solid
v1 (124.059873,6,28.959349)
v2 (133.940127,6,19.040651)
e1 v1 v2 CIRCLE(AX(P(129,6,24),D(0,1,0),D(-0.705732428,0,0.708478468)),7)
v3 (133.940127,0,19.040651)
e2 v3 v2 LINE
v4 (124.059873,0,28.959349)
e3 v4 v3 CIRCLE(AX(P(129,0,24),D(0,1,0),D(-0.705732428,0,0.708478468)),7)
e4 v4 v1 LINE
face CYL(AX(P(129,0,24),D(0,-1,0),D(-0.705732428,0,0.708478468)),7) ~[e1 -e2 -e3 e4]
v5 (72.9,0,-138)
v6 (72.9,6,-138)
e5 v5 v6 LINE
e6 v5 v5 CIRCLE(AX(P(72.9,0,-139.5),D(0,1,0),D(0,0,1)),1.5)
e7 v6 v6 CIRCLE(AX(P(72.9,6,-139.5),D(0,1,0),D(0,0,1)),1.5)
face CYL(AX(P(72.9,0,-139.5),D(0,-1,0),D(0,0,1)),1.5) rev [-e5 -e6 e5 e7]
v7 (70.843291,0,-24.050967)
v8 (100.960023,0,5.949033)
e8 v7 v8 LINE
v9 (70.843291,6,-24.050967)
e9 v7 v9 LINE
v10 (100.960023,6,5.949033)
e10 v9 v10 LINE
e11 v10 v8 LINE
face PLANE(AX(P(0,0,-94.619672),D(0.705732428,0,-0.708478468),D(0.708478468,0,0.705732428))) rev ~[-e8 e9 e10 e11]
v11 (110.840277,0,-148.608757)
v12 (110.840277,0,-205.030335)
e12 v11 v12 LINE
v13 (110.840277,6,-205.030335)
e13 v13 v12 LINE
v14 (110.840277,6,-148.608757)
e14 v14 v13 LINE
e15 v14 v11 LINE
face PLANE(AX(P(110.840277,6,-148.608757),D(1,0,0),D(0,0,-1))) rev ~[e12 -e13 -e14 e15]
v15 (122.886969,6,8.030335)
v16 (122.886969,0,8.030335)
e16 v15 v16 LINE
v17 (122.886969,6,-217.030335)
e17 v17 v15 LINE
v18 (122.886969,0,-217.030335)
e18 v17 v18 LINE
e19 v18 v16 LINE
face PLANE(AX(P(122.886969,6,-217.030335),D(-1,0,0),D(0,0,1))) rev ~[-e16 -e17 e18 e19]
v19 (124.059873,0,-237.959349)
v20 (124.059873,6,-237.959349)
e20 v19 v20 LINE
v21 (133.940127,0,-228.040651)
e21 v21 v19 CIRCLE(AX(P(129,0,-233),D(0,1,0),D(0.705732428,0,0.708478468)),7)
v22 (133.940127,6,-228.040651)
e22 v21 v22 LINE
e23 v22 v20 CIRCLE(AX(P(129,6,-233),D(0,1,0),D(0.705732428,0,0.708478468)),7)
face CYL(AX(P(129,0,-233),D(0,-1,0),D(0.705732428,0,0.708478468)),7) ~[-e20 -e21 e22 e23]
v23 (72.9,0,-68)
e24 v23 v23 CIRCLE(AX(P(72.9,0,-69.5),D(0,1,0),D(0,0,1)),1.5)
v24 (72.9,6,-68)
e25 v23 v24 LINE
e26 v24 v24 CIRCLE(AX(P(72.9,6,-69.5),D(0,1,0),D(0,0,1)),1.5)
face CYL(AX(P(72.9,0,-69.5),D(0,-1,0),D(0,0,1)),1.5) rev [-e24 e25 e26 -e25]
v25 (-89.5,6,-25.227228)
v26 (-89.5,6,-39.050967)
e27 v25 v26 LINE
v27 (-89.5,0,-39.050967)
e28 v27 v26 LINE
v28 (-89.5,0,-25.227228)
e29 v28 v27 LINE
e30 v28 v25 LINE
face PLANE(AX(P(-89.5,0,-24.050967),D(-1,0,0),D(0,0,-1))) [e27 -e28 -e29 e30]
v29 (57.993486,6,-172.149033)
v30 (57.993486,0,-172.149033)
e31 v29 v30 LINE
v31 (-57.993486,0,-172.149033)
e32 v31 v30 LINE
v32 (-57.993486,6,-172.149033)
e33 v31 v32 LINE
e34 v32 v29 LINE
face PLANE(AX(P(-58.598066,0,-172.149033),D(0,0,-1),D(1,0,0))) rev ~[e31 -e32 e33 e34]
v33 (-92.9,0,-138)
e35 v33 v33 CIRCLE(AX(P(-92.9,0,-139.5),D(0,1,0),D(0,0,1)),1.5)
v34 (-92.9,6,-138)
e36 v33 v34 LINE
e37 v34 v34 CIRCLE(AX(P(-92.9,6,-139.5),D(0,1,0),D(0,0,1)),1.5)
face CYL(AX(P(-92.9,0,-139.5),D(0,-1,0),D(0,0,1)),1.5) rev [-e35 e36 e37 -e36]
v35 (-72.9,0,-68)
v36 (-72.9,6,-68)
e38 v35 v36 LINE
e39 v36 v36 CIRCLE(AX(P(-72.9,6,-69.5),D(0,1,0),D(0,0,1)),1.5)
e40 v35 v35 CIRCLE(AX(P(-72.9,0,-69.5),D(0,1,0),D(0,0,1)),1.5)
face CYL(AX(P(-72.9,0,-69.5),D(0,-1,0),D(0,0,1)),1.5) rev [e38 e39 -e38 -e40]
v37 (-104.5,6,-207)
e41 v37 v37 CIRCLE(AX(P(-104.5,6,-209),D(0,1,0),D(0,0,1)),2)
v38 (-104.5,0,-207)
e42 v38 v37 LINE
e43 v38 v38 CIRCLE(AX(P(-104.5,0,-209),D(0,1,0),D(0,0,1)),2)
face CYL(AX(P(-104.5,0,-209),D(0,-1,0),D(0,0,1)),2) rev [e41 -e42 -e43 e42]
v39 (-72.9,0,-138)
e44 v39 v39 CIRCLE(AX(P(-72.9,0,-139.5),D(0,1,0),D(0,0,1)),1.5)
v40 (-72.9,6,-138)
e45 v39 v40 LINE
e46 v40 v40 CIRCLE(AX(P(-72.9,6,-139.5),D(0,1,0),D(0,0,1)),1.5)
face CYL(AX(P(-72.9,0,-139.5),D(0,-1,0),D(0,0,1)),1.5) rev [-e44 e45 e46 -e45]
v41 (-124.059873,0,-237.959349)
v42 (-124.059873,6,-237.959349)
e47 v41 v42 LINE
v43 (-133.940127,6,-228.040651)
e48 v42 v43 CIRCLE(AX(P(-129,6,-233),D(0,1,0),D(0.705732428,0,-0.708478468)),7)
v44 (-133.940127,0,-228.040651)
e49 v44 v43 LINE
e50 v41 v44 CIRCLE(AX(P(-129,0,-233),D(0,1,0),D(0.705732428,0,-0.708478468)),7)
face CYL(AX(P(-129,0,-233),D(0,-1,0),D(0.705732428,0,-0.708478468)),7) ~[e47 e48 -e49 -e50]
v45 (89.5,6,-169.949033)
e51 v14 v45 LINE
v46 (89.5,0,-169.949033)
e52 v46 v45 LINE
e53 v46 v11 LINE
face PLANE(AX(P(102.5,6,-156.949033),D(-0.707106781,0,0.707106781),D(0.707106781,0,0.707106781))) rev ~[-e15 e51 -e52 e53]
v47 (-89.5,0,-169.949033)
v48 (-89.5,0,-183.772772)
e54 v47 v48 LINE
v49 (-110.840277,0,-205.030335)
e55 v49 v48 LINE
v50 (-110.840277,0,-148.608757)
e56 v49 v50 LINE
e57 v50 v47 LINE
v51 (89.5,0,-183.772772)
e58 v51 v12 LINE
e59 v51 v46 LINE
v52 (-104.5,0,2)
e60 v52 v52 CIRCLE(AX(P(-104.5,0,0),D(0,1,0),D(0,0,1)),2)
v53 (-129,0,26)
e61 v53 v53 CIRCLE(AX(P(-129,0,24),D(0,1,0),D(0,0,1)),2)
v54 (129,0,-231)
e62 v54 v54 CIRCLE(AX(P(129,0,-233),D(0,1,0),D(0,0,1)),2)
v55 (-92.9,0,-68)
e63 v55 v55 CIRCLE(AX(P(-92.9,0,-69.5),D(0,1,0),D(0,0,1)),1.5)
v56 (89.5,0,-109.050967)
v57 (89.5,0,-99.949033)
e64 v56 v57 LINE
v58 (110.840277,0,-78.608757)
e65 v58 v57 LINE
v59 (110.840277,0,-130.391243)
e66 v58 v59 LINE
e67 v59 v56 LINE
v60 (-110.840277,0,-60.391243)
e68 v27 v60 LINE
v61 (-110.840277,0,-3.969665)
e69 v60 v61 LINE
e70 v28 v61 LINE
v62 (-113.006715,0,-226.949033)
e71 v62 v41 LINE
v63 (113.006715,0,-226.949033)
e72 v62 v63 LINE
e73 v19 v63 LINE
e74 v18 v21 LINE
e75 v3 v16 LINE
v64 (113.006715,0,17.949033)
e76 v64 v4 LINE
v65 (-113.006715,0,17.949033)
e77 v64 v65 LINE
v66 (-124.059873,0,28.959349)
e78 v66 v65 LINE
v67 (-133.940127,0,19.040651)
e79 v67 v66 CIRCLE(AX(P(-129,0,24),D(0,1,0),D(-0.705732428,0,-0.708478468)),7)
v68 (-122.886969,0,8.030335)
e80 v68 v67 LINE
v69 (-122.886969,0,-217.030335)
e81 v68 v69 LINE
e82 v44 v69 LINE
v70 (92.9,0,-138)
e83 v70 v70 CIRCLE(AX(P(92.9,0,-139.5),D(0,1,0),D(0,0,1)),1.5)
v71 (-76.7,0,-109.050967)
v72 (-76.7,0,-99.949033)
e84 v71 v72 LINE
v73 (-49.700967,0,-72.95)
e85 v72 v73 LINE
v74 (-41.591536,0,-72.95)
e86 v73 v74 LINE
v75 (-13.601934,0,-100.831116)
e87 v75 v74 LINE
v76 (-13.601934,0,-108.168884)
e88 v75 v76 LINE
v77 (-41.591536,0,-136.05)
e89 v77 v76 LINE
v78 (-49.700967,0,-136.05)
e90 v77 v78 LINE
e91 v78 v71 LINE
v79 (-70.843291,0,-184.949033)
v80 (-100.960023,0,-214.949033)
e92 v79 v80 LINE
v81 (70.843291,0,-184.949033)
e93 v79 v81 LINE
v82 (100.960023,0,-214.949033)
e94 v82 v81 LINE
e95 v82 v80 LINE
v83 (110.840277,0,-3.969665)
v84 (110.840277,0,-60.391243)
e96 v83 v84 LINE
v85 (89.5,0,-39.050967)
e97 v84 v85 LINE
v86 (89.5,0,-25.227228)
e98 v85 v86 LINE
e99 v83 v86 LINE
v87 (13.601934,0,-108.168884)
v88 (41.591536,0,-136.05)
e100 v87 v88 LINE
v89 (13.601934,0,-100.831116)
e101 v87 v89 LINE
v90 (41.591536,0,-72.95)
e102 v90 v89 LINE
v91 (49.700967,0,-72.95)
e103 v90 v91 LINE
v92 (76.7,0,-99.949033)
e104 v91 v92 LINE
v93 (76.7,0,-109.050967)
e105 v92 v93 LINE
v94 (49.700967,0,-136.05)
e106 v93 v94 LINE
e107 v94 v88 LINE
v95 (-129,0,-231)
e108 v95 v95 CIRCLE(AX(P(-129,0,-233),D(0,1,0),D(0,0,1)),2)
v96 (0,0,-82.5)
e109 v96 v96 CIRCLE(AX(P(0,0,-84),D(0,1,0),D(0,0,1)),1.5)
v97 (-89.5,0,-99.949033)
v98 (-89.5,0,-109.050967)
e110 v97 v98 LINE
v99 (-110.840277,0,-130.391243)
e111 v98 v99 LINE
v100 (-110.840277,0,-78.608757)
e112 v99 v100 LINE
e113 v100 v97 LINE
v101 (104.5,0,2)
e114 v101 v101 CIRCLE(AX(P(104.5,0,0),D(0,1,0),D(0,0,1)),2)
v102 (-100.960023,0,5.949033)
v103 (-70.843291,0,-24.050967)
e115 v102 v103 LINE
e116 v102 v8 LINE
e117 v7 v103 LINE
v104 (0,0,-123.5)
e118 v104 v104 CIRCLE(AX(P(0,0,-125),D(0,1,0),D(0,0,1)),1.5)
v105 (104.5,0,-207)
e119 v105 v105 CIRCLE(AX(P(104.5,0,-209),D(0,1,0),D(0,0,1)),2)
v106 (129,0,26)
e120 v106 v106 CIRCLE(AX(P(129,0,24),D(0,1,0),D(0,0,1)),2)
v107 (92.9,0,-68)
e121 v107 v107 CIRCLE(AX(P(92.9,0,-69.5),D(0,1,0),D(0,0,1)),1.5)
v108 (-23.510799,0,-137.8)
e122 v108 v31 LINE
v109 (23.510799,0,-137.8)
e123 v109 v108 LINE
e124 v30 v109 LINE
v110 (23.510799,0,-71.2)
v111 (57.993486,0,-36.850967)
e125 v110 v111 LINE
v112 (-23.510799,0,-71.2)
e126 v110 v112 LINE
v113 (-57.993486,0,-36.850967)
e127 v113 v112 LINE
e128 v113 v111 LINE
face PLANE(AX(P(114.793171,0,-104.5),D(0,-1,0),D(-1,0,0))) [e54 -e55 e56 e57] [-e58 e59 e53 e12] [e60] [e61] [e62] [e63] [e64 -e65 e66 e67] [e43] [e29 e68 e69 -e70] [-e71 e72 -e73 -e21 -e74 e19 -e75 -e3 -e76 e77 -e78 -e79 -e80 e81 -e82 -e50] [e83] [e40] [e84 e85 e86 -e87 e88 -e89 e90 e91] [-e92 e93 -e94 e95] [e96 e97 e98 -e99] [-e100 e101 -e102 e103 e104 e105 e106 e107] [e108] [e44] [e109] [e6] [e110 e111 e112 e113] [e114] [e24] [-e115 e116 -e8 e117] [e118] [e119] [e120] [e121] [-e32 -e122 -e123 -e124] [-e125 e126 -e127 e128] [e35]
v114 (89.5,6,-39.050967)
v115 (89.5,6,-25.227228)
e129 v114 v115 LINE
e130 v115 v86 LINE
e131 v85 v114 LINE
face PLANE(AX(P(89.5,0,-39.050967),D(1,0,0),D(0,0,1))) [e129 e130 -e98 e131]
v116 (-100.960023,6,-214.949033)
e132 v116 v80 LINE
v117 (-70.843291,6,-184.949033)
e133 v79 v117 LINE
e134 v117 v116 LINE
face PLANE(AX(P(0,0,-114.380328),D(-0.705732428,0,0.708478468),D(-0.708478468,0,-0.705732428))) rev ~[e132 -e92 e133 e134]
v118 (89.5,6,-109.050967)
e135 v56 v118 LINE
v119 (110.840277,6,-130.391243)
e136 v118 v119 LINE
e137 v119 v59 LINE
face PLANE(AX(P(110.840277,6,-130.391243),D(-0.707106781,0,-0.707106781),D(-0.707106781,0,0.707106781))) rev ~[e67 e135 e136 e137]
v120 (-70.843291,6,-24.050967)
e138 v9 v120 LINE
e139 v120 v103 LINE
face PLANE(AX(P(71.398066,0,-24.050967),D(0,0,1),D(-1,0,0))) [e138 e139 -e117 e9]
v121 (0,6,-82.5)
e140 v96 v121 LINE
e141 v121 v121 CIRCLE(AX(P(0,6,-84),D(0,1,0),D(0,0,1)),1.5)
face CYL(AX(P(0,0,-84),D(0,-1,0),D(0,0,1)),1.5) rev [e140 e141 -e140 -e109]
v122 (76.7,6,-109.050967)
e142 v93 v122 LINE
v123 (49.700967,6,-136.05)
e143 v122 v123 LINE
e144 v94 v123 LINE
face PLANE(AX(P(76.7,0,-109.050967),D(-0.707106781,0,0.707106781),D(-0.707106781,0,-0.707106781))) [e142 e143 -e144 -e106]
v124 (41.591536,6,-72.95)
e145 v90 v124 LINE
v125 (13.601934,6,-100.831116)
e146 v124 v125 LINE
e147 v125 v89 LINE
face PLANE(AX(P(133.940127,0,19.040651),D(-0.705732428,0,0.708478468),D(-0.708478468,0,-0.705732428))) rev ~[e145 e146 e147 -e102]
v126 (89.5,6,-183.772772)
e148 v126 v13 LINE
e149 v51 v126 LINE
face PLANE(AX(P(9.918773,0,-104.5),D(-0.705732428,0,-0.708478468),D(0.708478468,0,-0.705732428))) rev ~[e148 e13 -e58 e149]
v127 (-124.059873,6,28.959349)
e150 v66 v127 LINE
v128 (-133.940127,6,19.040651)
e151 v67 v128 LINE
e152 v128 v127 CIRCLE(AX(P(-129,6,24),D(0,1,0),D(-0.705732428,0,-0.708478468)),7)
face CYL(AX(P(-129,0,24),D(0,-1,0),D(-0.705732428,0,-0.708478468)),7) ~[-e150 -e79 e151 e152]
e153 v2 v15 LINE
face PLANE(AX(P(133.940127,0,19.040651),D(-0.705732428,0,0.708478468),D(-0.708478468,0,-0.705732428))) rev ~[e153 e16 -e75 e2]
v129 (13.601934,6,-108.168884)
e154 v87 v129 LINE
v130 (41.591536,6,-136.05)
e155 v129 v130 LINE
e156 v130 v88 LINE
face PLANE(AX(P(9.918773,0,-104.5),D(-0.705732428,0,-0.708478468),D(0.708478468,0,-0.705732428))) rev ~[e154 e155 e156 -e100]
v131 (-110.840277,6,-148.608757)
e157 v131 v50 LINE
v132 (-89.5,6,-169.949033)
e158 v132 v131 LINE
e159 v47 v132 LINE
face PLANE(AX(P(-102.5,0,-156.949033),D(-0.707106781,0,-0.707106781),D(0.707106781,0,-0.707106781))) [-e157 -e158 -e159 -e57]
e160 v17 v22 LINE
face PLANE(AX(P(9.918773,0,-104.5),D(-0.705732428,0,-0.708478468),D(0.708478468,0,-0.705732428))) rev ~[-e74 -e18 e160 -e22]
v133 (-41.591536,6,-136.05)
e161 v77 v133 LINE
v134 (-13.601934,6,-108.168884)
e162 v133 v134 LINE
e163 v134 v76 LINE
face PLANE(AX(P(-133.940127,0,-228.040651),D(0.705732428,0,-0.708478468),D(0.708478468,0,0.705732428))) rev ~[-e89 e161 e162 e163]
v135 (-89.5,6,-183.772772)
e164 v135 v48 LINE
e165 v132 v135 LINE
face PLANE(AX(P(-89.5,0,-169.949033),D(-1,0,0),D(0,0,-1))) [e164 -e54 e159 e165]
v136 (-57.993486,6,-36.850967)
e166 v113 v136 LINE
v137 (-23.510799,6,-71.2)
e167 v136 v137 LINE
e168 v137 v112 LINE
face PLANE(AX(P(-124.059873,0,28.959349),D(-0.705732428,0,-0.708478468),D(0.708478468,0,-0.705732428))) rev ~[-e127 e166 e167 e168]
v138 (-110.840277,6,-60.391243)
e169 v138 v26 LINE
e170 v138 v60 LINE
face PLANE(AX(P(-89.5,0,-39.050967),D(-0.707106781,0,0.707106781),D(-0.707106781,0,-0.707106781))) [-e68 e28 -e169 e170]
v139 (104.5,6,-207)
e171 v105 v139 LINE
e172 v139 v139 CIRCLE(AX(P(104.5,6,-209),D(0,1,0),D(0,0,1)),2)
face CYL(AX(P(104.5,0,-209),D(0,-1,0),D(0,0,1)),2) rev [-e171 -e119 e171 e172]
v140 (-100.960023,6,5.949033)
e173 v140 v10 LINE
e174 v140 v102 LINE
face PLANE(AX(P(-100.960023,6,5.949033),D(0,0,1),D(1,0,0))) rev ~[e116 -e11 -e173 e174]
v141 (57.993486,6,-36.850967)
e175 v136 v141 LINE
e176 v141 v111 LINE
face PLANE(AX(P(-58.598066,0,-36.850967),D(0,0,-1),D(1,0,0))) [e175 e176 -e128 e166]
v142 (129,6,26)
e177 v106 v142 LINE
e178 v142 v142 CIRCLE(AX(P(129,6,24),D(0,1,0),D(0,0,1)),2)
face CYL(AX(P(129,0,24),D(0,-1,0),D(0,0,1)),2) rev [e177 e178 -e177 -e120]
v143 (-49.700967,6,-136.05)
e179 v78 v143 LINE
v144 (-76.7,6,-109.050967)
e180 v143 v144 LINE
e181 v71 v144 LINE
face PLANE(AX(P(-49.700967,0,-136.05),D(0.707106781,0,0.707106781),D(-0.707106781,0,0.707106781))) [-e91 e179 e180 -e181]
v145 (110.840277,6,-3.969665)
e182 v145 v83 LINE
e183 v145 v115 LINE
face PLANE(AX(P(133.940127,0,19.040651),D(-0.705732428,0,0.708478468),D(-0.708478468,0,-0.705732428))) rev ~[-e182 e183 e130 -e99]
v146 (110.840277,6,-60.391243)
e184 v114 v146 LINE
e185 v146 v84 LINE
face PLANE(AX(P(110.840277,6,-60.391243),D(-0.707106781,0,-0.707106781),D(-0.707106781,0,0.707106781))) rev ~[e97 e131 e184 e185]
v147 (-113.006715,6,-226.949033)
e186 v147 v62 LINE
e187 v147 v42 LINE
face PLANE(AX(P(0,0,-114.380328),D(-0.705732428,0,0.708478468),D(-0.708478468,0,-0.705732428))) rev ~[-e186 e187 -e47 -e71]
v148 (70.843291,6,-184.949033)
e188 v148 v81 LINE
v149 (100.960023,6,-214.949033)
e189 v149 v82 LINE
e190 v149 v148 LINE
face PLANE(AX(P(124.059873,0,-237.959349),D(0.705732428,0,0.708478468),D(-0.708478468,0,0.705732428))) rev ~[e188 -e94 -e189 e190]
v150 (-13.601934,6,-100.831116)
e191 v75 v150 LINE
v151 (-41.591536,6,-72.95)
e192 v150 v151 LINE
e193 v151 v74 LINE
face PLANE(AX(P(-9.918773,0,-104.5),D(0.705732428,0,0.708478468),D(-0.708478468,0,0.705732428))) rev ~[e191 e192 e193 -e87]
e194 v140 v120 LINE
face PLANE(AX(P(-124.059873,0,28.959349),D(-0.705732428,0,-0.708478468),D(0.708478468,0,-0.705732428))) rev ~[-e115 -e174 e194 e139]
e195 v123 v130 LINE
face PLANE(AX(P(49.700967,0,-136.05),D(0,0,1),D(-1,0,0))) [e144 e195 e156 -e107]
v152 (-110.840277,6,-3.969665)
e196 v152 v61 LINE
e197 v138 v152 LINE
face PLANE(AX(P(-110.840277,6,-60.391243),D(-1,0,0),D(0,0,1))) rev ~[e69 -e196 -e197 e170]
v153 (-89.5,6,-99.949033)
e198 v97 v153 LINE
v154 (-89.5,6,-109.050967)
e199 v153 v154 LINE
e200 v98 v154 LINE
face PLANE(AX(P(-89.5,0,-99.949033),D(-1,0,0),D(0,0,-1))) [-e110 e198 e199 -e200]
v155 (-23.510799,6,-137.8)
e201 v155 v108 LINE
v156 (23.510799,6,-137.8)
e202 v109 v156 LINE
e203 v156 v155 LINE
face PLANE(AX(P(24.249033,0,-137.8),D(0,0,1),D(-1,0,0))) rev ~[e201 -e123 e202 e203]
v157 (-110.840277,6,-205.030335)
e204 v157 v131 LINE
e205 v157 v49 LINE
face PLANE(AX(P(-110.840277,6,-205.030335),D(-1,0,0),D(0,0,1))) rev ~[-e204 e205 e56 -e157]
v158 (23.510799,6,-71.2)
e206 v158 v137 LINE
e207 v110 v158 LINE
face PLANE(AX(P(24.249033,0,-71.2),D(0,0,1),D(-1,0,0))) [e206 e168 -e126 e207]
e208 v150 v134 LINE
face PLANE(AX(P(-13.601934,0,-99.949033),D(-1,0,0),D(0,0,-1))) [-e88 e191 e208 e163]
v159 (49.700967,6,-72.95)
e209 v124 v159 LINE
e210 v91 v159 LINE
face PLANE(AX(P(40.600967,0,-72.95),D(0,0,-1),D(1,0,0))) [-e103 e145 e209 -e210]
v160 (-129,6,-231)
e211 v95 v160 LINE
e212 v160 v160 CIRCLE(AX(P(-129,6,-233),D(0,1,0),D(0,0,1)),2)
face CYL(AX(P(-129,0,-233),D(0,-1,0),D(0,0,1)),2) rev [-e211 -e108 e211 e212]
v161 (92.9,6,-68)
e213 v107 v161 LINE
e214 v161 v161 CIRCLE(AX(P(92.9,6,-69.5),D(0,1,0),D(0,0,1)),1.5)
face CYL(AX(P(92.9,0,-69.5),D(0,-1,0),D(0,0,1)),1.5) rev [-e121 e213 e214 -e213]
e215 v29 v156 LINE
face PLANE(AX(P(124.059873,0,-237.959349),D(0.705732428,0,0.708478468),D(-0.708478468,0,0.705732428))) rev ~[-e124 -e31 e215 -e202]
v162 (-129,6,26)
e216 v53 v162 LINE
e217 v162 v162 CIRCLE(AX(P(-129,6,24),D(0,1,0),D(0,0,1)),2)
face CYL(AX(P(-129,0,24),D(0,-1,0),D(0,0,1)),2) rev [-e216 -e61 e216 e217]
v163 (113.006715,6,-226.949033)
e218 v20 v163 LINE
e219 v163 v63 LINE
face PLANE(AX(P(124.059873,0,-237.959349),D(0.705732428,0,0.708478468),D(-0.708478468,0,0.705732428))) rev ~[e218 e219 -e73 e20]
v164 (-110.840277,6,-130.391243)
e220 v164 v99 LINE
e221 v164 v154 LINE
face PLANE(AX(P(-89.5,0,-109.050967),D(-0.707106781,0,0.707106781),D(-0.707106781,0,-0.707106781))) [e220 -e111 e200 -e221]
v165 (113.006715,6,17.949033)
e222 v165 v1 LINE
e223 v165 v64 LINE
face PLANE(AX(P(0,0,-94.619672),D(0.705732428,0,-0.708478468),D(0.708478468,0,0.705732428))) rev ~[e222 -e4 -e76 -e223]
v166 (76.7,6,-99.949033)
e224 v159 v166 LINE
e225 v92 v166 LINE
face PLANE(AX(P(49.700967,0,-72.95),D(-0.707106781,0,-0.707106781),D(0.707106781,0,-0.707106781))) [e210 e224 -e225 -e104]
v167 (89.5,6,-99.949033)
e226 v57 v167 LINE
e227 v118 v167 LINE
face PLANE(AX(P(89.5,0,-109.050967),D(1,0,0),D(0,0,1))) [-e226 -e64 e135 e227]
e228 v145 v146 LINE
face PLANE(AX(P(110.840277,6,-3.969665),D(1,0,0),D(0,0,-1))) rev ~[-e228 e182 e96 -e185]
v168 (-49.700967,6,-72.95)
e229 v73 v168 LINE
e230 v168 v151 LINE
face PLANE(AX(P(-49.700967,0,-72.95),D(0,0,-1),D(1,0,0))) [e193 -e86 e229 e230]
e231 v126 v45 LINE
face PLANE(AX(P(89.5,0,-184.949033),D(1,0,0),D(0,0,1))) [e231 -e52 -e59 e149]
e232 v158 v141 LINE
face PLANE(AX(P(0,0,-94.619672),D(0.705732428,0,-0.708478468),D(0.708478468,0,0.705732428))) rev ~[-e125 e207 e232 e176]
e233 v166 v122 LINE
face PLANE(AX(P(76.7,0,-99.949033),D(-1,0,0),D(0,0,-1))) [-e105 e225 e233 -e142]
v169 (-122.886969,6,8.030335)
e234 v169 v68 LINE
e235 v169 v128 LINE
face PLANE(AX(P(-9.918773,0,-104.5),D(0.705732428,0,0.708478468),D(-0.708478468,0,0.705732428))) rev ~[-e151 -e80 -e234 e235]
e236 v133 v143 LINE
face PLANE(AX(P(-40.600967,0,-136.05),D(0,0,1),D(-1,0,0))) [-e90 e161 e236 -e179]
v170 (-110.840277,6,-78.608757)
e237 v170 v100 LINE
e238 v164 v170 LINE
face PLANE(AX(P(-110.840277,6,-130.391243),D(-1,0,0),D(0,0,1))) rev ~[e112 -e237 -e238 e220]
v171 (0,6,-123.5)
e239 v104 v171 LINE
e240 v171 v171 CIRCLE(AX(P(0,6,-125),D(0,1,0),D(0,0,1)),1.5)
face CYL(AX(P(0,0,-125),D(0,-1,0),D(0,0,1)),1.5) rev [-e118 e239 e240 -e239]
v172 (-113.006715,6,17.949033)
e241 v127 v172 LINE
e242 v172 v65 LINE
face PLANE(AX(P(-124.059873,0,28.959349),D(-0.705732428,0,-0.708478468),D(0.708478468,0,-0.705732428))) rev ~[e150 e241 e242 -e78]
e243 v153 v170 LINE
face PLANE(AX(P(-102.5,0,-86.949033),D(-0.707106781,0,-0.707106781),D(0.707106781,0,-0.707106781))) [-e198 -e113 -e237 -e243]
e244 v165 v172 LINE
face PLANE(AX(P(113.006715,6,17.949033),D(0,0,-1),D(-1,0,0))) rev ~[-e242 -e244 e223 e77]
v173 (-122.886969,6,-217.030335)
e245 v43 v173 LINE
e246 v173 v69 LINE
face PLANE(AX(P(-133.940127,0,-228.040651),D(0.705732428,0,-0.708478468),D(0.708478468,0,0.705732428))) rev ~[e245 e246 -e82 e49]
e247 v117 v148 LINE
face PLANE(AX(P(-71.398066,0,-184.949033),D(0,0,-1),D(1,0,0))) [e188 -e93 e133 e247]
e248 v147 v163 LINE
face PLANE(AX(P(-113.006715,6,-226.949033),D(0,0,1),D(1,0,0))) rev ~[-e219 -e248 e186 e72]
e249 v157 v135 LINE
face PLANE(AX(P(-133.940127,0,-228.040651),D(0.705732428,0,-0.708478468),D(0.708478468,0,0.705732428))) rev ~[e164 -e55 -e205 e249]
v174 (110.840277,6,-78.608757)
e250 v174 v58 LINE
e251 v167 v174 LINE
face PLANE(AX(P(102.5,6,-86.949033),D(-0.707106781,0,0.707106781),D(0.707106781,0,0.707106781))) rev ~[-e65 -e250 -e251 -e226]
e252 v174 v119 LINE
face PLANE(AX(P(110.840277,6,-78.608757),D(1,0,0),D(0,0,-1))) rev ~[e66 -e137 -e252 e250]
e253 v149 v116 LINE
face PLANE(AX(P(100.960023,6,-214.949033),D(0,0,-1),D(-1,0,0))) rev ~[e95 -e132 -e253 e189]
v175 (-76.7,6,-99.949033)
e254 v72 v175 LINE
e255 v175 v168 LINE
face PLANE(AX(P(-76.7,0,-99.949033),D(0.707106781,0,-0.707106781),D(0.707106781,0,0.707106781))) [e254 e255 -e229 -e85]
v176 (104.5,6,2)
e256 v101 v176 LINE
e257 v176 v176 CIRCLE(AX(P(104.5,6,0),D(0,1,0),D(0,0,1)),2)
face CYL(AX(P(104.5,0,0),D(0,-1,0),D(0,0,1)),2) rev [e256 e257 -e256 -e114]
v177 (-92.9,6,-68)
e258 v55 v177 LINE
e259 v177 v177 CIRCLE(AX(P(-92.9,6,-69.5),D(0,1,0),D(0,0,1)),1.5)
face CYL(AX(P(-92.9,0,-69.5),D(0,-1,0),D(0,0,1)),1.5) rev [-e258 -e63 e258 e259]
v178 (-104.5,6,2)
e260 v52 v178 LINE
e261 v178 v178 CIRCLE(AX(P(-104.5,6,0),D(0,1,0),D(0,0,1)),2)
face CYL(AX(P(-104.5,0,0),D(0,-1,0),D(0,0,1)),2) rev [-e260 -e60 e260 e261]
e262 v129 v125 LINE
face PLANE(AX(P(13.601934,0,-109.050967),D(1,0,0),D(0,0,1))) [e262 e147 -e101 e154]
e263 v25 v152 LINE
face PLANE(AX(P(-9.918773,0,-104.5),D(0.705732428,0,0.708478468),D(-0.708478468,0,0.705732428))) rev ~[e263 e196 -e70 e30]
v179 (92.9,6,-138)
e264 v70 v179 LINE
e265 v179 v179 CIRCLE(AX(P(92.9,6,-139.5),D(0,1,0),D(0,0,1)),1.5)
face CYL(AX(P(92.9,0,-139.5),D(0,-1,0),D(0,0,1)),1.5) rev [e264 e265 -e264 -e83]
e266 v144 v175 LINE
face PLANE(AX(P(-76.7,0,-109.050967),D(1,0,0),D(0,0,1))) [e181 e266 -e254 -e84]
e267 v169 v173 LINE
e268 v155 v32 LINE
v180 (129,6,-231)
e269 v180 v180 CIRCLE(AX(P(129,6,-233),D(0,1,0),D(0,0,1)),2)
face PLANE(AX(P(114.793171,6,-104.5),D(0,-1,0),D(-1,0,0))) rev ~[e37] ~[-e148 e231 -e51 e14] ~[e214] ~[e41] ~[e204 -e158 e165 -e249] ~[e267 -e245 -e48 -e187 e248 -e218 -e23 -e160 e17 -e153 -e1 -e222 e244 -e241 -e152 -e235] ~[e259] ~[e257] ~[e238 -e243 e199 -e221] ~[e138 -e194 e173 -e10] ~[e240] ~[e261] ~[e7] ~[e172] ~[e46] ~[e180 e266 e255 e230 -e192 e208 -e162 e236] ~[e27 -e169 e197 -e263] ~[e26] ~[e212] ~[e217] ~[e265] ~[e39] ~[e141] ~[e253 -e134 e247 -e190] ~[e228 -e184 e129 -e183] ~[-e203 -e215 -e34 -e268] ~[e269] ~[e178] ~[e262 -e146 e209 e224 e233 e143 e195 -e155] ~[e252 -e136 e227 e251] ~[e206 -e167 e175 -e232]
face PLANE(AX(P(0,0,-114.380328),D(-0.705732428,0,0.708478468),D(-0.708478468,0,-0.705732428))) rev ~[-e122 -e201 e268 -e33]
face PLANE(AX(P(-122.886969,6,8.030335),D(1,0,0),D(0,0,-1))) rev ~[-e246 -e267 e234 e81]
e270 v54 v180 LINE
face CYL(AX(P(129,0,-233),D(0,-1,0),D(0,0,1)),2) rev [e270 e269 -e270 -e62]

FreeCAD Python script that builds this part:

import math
import FreeCAD as App
import Part
import Sketcher
Q = App.Units.Quantity


def add_polygon(sketch, points):
    """Adds a closed chain of lines whose ends are joined by coincident constraints."""
    first, n = sketch.GeometryCount, len(points)
    for a, b in zip(points, points[1:] + points[:1]):
        sketch.addGeometry(Part.LineSegment(App.Vector(*a, 0), App.Vector(*b, 0)), False)
    for i in range(n):
        sketch.addConstraint(Sketcher.Constraint("Coincident", first + i, 2, first + (i + 1) % n, 1))

doc = App.newDocument("Part")
body = doc.addObject("PartDesign::Body", "Body")

# Sketch on XZ plane
sketch1 = body.newObject("Sketcher::SketchObject", "Sketch")
sketch1.AttachmentSupport = (doc.getObject("XZ_Plane"), [""])
sketch1.MapMode = "FlatFace"
sketch1.addGeometry(Part.LineSegment(App.Vector(71.4, -24.1, 0), App.Vector(100, 4.5, 0)), False)  # 0
sketch1.addGeometry(Part.ArcOfCircle(Part.Circle(App.Vector(104.5, 0, 0), App.Vector(0, 0, 1), 6.4), math.radians(-45), math.radians(135)), False)  # 1
sketch1.addGeometry(Part.LineSegment(App.Vector(109, -4.5, 0), App.Vector(89.5, -24.1, 0)), False)  # 2
sketch1.addGeometry(Part.LineSegment(App.Vector(89.5, -24.1, 0), App.Vector(89.5, -39.1, 0)), False)  # 3
sketch1.addGeometry(Part.LineSegment(App.Vector(89.5, -39.1, 0), App.Vector(102.5, -52.1, 0)), False)  # 4
sketch1.addGeometry(Part.LineSegment(App.Vector(102.5, -52.1, 0), App.Vector(102.5, -86.9, 0)), False)  # 5
sketch1.addGeometry(Part.LineSegment(App.Vector(102.5, -86.9, 0), App.Vector(89.5, -99.9, 0)), False)  # 6
sketch1.addGeometry(Part.LineSegment(App.Vector(89.5, -99.9, 0), App.Vector(89.5, -109.1, 0)), False)  # 7
sketch1.addGeometry(Part.LineSegment(App.Vector(89.5, -109.1, 0), App.Vector(102.5, -122.1, 0)), False)  # 8
sketch1.addGeometry(Part.LineSegment(App.Vector(102.5, -122.1, 0), App.Vector(102.5, -156.9, 0)), False)  # 9
sketch1.addGeometry(Part.LineSegment(App.Vector(102.5, -156.9, 0), App.Vector(89.5, -169.9, 0)), False)  # 10
sketch1.addGeometry(Part.LineSegment(App.Vector(89.5, -169.9, 0), App.Vector(89.5, -184.9, 0)), False)  # 11
sketch1.addGeometry(Part.LineSegment(App.Vector(89.5, -184.9, 0), App.Vector(109, -204.5, 0)), False)  # 12
sketch1.addGeometry(Part.ArcOfCircle(Part.Circle(App.Vector(104.5, -209, 0), App.Vector(0, 0, 1), 6.4), math.radians(-135), math.radians(45)), False)  # 13
sketch1.addGeometry(Part.LineSegment(App.Vector(100, -213.5, 0), App.Vector(71.4, -184.9, 0)), False)  # 14
sketch1.addGeometry(Part.LineSegment(App.Vector(71.4, -184.9, 0), App.Vector(-71.4, -184.9, 0)), False)  # 15
sketch1.addGeometry(Part.LineSegment(App.Vector(-71.4, -184.9, 0), App.Vector(-100, -213.5, 0)), False)  # 16
sketch1.addGeometry(Part.ArcOfCircle(Part.Circle(App.Vector(-104.5, -209, 0), App.Vector(0, 0, 1), 6.4), math.radians(135), math.radians(315)), False)  # 17
sketch1.addGeometry(Part.LineSegment(App.Vector(-109, -204.5, 0), App.Vector(-89.5, -184.9, 0)), False)  # 18
sketch1.addGeometry(Part.LineSegment(App.Vector(-89.5, -184.9, 0), App.Vector(-89.5, -169.9, 0)), False)  # 19
sketch1.addGeometry(Part.LineSegment(App.Vector(-89.5, -169.9, 0), App.Vector(-102.5, -156.9, 0)), False)  # 20
sketch1.addGeometry(Part.LineSegment(App.Vector(-102.5, -156.9, 0), App.Vector(-102.5, -122.1, 0)), False)  # 21
sketch1.addGeometry(Part.LineSegment(App.Vector(-102.5, -122.1, 0), App.Vector(-89.5, -109.1, 0)), False)  # 22
sketch1.addGeometry(Part.LineSegment(App.Vector(-89.5, -109.1, 0), App.Vector(-89.5, -99.9, 0)), False)  # 23
sketch1.addGeometry(Part.LineSegment(App.Vector(-89.5, -99.9, 0), App.Vector(-102.5, -86.9, 0)), False)  # 24
sketch1.addGeometry(Part.LineSegment(App.Vector(-102.5, -86.9, 0), App.Vector(-102.5, -52.1, 0)), False)  # 25
sketch1.addGeometry(Part.LineSegment(App.Vector(-102.5, -52.1, 0), App.Vector(-89.5, -39.1, 0)), False)  # 26
sketch1.addGeometry(Part.LineSegment(App.Vector(-89.5, -39.1, 0), App.Vector(-89.5, -24.1, 0)), False)  # 27
sketch1.addGeometry(Part.LineSegment(App.Vector(-89.5, -24.1, 0), App.Vector(-109, -4.5, 0)), False)  # 28
sketch1.addGeometry(Part.ArcOfCircle(Part.Circle(App.Vector(-104.5, 0, 0), App.Vector(0, 0, 1), 6.4), math.radians(45), math.radians(225)), False)  # 29
sketch1.addGeometry(Part.LineSegment(App.Vector(-100, 4.5, 0), App.Vector(-71.4, -24.1, 0)), False)  # 30
sketch1.addGeometry(Part.LineSegment(App.Vector(-71.4, -24.1, 0), App.Vector(71.4, -24.1, 0)), False)  # 31
sketch1.addGeometry(Part.Circle(App.Vector(104.5, 0, 0), App.Vector(0, 0, 1), 2), False)  # 32
sketch1.addGeometry(Part.Circle(App.Vector(92.9, -69.5, 0), App.Vector(0, 0, 1), 1.5), False)  # 33
sketch1.addGeometry(Part.Circle(App.Vector(72.9, -69.5, 0), App.Vector(0, 0, 1), 1.5), False)  # 34
sketch1.addGeometry(Part.Circle(App.Vector(-104.5, 0, 0), App.Vector(0, 0, 1), 2), False)  # 35
add_polygon(sketch1, [(-58.6, -36.9), (-24.2, -71.2), (24.2, -71.2), (58.6, -36.9)])  # lines 36-39
sketch1.addGeometry(Part.Circle(App.Vector(0, -84, 0), App.Vector(0, 0, 1), 1.5), False)  # 40
sketch1.addGeometry(Part.Circle(App.Vector(-72.9, -69.5, 0), App.Vector(0, 0, 1), 1.5), False)  # 41
sketch1.addGeometry(Part.Circle(App.Vector(-92.9, -69.5, 0), App.Vector(0, 0, 1), 1.5), False)  # 42
sketch1.addGeometry(Part.Circle(App.Vector(92.9, -139.5, 0), App.Vector(0, 0, 1), 1.5), False)  # 43
sketch1.addGeometry(Part.Circle(App.Vector(72.9, -139.5, 0), App.Vector(0, 0, 1), 1.5), False)  # 44
add_polygon(sketch1, [(40.6, -136.1), (49.7, -136.1), (76.7, -109.1), (76.7, -99.9), (49.7, -73), (40.6, -73), (13.6, -99.9), (13.6, -109.1)])  # lines 45-52
sketch1.addGeometry(Part.Circle(App.Vector(104.5, -209, 0), App.Vector(0, 0, 1), 2), False)  # 53
sketch1.addGeometry(Part.Circle(App.Vector(0, -125, 0), App.Vector(0, 0, 1), 1.5), False)  # 54
add_polygon(sketch1, [(-40.6, -73), (-49.7, -73), (-76.7, -99.9), (-76.7, -109.1), (-49.7, -136.1), (-40.6, -136.1), (-13.6, -109.1), (-13.6, -99.9)])  # lines 55-62
add_polygon(sketch1, [(-58.6, -172.1), (58.6, -172.1), (24.2, -137.8), (-24.2, -137.8)])  # lines 63-66
sketch1.addGeometry(Part.Circle(App.Vector(-72.9, -139.5, 0), App.Vector(0, 0, 1), 1.5), False)  # 67
sketch1.addGeometry(Part.Circle(App.Vector(-92.9, -139.5, 0), App.Vector(0, 0, 1), 1.5), False)  # 68
sketch1.addGeometry(Part.Circle(App.Vector(-104.5, -209, 0), App.Vector(0, 0, 1), 2), False)  # 69
sketch1.addConstraint(Sketcher.Constraint("Tangent", 0, 2, 1, 2))
sketch1.addConstraint(Sketcher.Constraint("Tangent", 1, 1, 2, 1))
sketch1.addConstraint(Sketcher.Constraint("Coincident", 2, 2, 3, 1))
sketch1.addConstraint(Sketcher.Constraint("Coincident", 3, 2, 4, 1))
sketch1.addConstraint(Sketcher.Constraint("Coincident", 4, 2, 5, 1))
sketch1.addConstraint(Sketcher.Constraint("Coincident", 5, 2, 6, 1))
sketch1.addConstraint(Sketcher.Constraint("Coincident", 6, 2, 7, 1))
sketch1.addConstraint(Sketcher.Constraint("Coincident", 7, 2, 8, 1))
sketch1.addConstraint(Sketcher.Constraint("Coincident", 8, 2, 9, 1))
sketch1.addConstraint(Sketcher.Constraint("Coincident", 9, 2, 10, 1))
sketch1.addConstraint(Sketcher.Constraint("Coincident", 10, 2, 11, 1))
sketch1.addConstraint(Sketcher.Constraint("Coincident", 11, 2, 12, 1))
sketch1.addConstraint(Sketcher.Constraint("Tangent", 12, 2, 13, 2))
sketch1.addConstraint(Sketcher.Constraint("Tangent", 13, 1, 14, 1))
sketch1.addConstraint(Sketcher.Constraint("Coincident", 14, 2, 15, 1))
sketch1.addConstraint(Sketcher.Constraint("Coincident", 15, 2, 16, 1))
sketch1.addConstraint(Sketcher.Constraint("Tangent", 16, 2, 17, 2))
sketch1.addConstraint(Sketcher.Constraint("Tangent", 17, 1, 18, 1))
sketch1.addConstraint(Sketcher.Constraint("Coincident", 18, 2, 19, 1))
sketch1.addConstraint(Sketcher.Constraint("Coincident", 19, 2, 20, 1))
sketch1.addConstraint(Sketcher.Constraint("Coincident", 20, 2, 21, 1))
sketch1.addConstraint(Sketcher.Constraint("Coincident", 21, 2, 22, 1))
sketch1.addConstraint(Sketcher.Constraint("Coincident", 22, 2, 23, 1))
sketch1.addConstraint(Sketcher.Constraint("Coincident", 23, 2, 24, 1))
sketch1.addConstraint(Sketcher.Constraint("Coincident", 24, 2, 25, 1))
sketch1.addConstraint(Sketcher.Constraint("Coincident", 25, 2, 26, 1))
sketch1.addConstraint(Sketcher.Constraint("Coincident", 26, 2, 27, 1))
sketch1.addConstraint(Sketcher.Constraint("Coincident", 27, 2, 28, 1))
sketch1.addConstraint(Sketcher.Constraint("Tangent", 28, 2, 29, 2))
sketch1.addConstraint(Sketcher.Constraint("Tangent", 29, 1, 30, 1))
sketch1.addConstraint(Sketcher.Constraint("Coincident", 30, 2, 31, 1))
sketch1.addConstraint(Sketcher.Constraint("Coincident", 31, 2, 0, 1))
sketch1.addConstraint(Sketcher.Constraint("Vertical", 3))
sketch1.addConstraint(Sketcher.Constraint("Vertical", 5))
sketch1.addConstraint(Sketcher.Constraint("Vertical", 7))
sketch1.addConstraint(Sketcher.Constraint("Vertical", 9))
sketch1.addConstraint(Sketcher.Constraint("Vertical", 11))
sketch1.addConstraint(Sketcher.Constraint("Horizontal", 15))
sketch1.addConstraint(Sketcher.Constraint("Vertical", 19))
sketch1.addConstraint(Sketcher.Constraint("Vertical", 21))
sketch1.addConstraint(Sketcher.Constraint("Vertical", 23))
sketch1.addConstraint(Sketcher.Constraint("Vertical", 25))
sketch1.addConstraint(Sketcher.Constraint("Vertical", 27))
sketch1.addConstraint(Sketcher.Constraint("Horizontal", 31))
sketch1.addConstraint(Sketcher.Constraint("Horizontal", 37))
sketch1.addConstraint(Sketcher.Constraint("Horizontal", 39))
sketch1.addConstraint(Sketcher.Constraint("Horizontal", 45))
sketch1.addConstraint(Sketcher.Constraint("Vertical", 47))
sketch1.addConstraint(Sketcher.Constraint("Horizontal", 49))
sketch1.addConstraint(Sketcher.Constraint("Vertical", 51))
sketch1.addConstraint(Sketcher.Constraint("Horizontal", 55))
sketch1.addConstraint(Sketcher.Constraint("Vertical", 57))
sketch1.addConstraint(Sketcher.Constraint("Horizontal", 59))
sketch1.addConstraint(Sketcher.Constraint("Vertical", 61))
sketch1.addConstraint(Sketcher.Constraint("Horizontal", 63))
sketch1.addConstraint(Sketcher.Constraint("Horizontal", 65))
sketch1.addConstraint(Sketcher.Constraint("Coincident", 32, 3, 1, 3))
sketch1.addConstraint(Sketcher.Constraint("Coincident", 35, 3, 29, 3))
sketch1.addConstraint(Sketcher.Constraint("Coincident", 53, 3, 13, 3))
sketch1.addConstraint(Sketcher.Constraint("Coincident", 69, 3, 17, 3))
sketch1.addConstraint(Sketcher.Constraint("Equal", 1, 13))
sketch1.addConstraint(Sketcher.Constraint("Equal", 13, 17))
sketch1.addConstraint(Sketcher.Constraint("Equal", 17, 29))
sketch1.addConstraint(Sketcher.Constraint("Equal", 33, 34))
sketch1.addConstraint(Sketcher.Constraint("Equal", 32, 35))
sketch1.addConstraint(Sketcher.Constraint("Equal", 34, 40))
sketch1.addConstraint(Sketcher.Constraint("Equal", 40, 41))
sketch1.addConstraint(Sketcher.Constraint("Equal", 41, 42))
sketch1.addConstraint(Sketcher.Constraint("Equal", 42, 43))
sketch1.addConstraint(Sketcher.Constraint("Equal", 43, 44))
sketch1.addConstraint(Sketcher.Constraint("Equal", 35, 53))
sketch1.addConstraint(Sketcher.Constraint("Equal", 44, 54))
sketch1.addConstraint(Sketcher.Constraint("Equal", 54, 67))
sketch1.addConstraint(Sketcher.Constraint("Equal", 67, 68))
sketch1.addConstraint(Sketcher.Constraint("Equal", 53, 69))
sketch1.addConstraint(Sketcher.Constraint("Symmetric", 1, 3, 29, 3, -1, 1))
sketch1.addConstraint(Sketcher.Constraint("Symmetric", 13, 3, 17, 3, -2))
sketch1.addConstraint(Sketcher.Constraint("Symmetric", 34, 3, 41, 3, -2))
sketch1.addConstraint(Sketcher.Constraint("Symmetric", 33, 3, 42, 3, -2))
sketch1.addConstraint(Sketcher.Constraint("Symmetric", 44, 3, 67, 3, -2))
sketch1.addConstraint(Sketcher.Constraint("Symmetric", 43, 3, 68, 3, -2))
sketch1.addConstraint(Sketcher.Constraint("Symmetric", 11, 2, 18, 2, -2))
sketch1.addConstraint(Sketcher.Constraint("Symmetric", 9, 2, 20, 2, -2))
sketch1.addConstraint(Sketcher.Constraint("Symmetric", 7, 2, 22, 2, -2))
sketch1.addConstraint(Sketcher.Constraint("Symmetric", 5, 2, 24, 2, -2))
sketch1.addConstraint(Sketcher.Constraint("Symmetric", 3, 2, 26, 2, -2))
sketch1.addConstraint(Sketcher.Constraint("Symmetric", 1, 1, 28, 2, -2))
sketch1.addConstraint(Sketcher.Constraint("Symmetric", 48, 2, 55, 2, -2))
sketch1.addConstraint(Sketcher.Constraint("Symmetric", 47, 2, 56, 2, -2))
sketch1.addConstraint(Sketcher.Constraint("Symmetric", 45, 2, 58, 2, -2))
sketch1.addConstraint(Sketcher.Constraint("Symmetric", 51, 2, 60, 2, -2))
sketch1.addConstraint(Sketcher.Constraint("PointOnObject", 40, 3, -2))
sketch1.addConstraint(Sketcher.Constraint("PointOnObject", 54, 3, -2))
sketch1.addConstraint(Sketcher.Constraint("Parallel", 0, 2))
sketch1.addConstraint(Sketcher.Constraint("Perpendicular", 2, 4))
sketch1.addConstraint(Sketcher.Constraint("Perpendicular", 4, 6))
sketch1.addConstraint(Sketcher.Constraint("Perpendicular", 6, 8))
sketch1.addConstraint(Sketcher.Constraint("Perpendicular", 8, 10))
sketch1.addConstraint(Sketcher.Constraint("Perpendicular", 10, 12))
sketch1.addConstraint(Sketcher.Constraint("Parallel", 12, 14))
sketch1.addConstraint(Sketcher.Constraint("Perpendicular", 14, 16))
sketch1.addConstraint(Sketcher.Constraint("Parallel", 16, 18))
sketch1.addConstraint(Sketcher.Constraint("Perpendicular", 18, 20))
sketch1.addConstraint(Sketcher.Constraint("Perpendicular", 20, 22))
sketch1.addConstraint(Sketcher.Constraint("Perpendicular", 22, 24))
sketch1.addConstraint(Sketcher.Constraint("Perpendicular", 24, 26))
sketch1.addConstraint(Sketcher.Constraint("Parallel", 28, 30))
sketch1.addConstraint(Sketcher.Constraint("Parallel", 30, 36))
sketch1.addConstraint(Sketcher.Constraint("Perpendicular", 36, 38))
sketch1.addConstraint(Sketcher.Constraint("Parallel", 38, 46))
sketch1.addConstraint(Sketcher.Constraint("Perpendicular", 46, 48))
sketch1.addConstraint(Sketcher.Constraint("Perpendicular", 48, 50))
sketch1.addConstraint(Sketcher.Constraint("Perpendicular", 50, 52))
sketch1.addConstraint(Sketcher.Constraint("Perpendicular", 56, 58))
sketch1.addConstraint(Sketcher.Constraint("Perpendicular", 58, 60))
sketch1.addConstraint(Sketcher.Constraint("Perpendicular", 60, 62))
sketch1.addConstraint(Sketcher.Constraint("Parallel", 62, 64))
sketch1.addConstraint(Sketcher.Constraint("Perpendicular", 64, 66))
sketch1.addConstraint(Sketcher.Constraint("Horizontal", 33, 3, 34, 3))
sketch1.addConstraint(Sketcher.Constraint("Horizontal", 43, 3, 44, 3))
sketch1.addConstraint(Sketcher.Constraint("Horizontal", 11, 2, 14, 2))
sketch1.addConstraint(Sketcher.Constraint("Horizontal", 27, 2, 30, 2))
sketch1.addConstraint(Sketcher.Constraint("Horizontal", 22, 2, 46, 2))
sketch1.addConstraint(Sketcher.Constraint("Horizontal", 23, 2, 47, 2))
sketch1.addConstraint(Sketcher.Constraint("Horizontal", 47, 2, 50, 2))
sketch1.addConstraint(Sketcher.Constraint("Horizontal", 46, 2, 51, 2))
sketch1.addConstraint(Sketcher.Constraint("Horizontal", 56, 2, 61, 2))
sketch1.addConstraint(Sketcher.Constraint("Vertical", 1, 3, 13, 3))
sketch1.addConstraint(Sketcher.Constraint("Vertical", 33, 3, 43, 3))
sketch1.addConstraint(Sketcher.Constraint("Vertical", 34, 3, 44, 3))
sketch1.addConstraint(Sketcher.Constraint("Vertical", 3, 2, 6, 2))
sketch1.addConstraint(Sketcher.Constraint("Vertical", 5, 2, 8, 2))
sketch1.addConstraint(Sketcher.Constraint("Vertical", 7, 2, 10, 2))
sketch1.addConstraint(Sketcher.Constraint("Vertical", 45, 2, 48, 2))
sketch1.addConstraint(Sketcher.Constraint("Vertical", 38, 2, 63, 2))
sketch1.addConstraint(Sketcher.Constraint("Vertical", 37, 2, 64, 2))
sketch1.addConstraint(Sketcher.Constraint("Vertical", 36, 2, 65, 2))
sketch1.addConstraint(Sketcher.Constraint("Equal", 5, 9))
sketch1.addConstraint(Sketcher.Constraint("Equal", 3, 11))
sketch1.addConstraint(Sketcher.Constraint("Diameter", 32, Q("4 mm")))
sketch1.addConstraint(Sketcher.Constraint("Diameter", 33, Q("3 mm")))
sketch1.addConstraint(Sketcher.Constraint("Radius", 1, Q("6.4 mm")))
sketch1.addConstraint(Sketcher.Constraint("DistanceY", 3, 2, 3, 1, Q("15 mm")))
sketch1.addConstraint(Sketcher.Constraint("DistanceX", 45, 1, 45, 2, Q("9.1 mm")))
sketch1.addConstraint(Sketcher.Constraint("DistanceY", 13, 3, -1, 1, Q("209 mm")))
sketch1.addConstraint(Sketcher.Constraint("DistanceY", 40, 3, -1, 1, Q("84 mm")))
sketch1.addConstraint(Sketcher.Constraint("DistanceY", 54, 3, -1, 1, Q("125 mm")))
sketch1.addConstraint(Sketcher.Constraint("DistanceX", -1, 1, 1, 3, Q("104.5 mm")))
sketch1.addConstraint(Sketcher.Constraint("DistanceX", -1, 1, 33, 3, Q("92.9 mm")))
sketch1.addConstraint(Sketcher.Constraint("DistanceY", 33, 3, -1, 1, Q("69.5 mm")))
sketch1.addConstraint(Sketcher.Constraint("DistanceX", -1, 1, 34, 3, Q("72.9 mm")))
sketch1.addConstraint(Sketcher.Constraint("DistanceY", 43, 3, -1, 1, Q("139.5 mm")))
sketch1.addConstraint(Sketcher.Constraint("DistanceX", -1, 1, 2, 2, Q("89.5 mm")))
sketch1.addConstraint(Sketcher.Constraint("DistanceX", -1, 1, 4, 2, Q("102.5 mm")))
sketch1.addConstraint(Sketcher.Constraint("DistanceY", 36, 2, -1, 1, Q("71.2 mm")))
sketch1.addConstraint(Sketcher.Constraint("DistanceX", -1, 1, 46, 2, Q("76.7 mm")))
sketch1.addConstraint(Sketcher.Constraint("DistanceY", 64, 2, -1, 1, Q("137.8 mm")))
sketch1.addConstraint(Sketcher.Constraint("DistanceY", 45, 2, -1, 1, Q("136.05 mm")))
sketch1.addConstraint(Sketcher.Constraint("Distance", 46, Q("38.182399 mm")))
sketch1.addConstraint(Sketcher.Constraint("Distance", 36, Q("48.576869 mm")))
sketch1.addConstraint(Sketcher.Constraint("DistanceX", 37, 1, 37, 2, Q("48.498066 mm")))
sketch1.addConstraint(Sketcher.Constraint("DistanceX", 36, 2, -1, 1, Q("24.249033 mm")))
pad1 = body.newObject("PartDesign::Pad", "Pad")
pad1.Profile = sketch1
pad1.Length = 6
pad1.Reversed = True

# Sketch on XZ plane
sketch2 = body.newObject("Sketcher::SketchObject", "Sketch001")
sketch2.AttachmentSupport = (doc.getObject("XZ_Plane"), [""])
sketch2.MapMode = "FlatFace"
sketch2.addGeometry(Part.LineSegment(App.Vector(-133.9, -228, 0), App.Vector(-9.9, -104.5, 0)), False)
sketch2.addGeometry(Part.LineSegment(App.Vector(-9.9, -104.5, 0), App.Vector(-133.9, 19, 0)), False)
sketch2.addGeometry(Part.ArcOfCircle(Part.Circle(App.Vector(-129, 24, 0), App.Vector(0, 0, 1), 7), math.radians(45), math.radians(225)), False)
sketch2.addGeometry(Part.LineSegment(App.Vector(-124.1, 29, 0), App.Vector(0, -94.6, 0)), False)
sketch2.addGeometry(Part.LineSegment(App.Vector(0, -94.6, 0), App.Vector(124.1, 29, 0)), False)
sketch2.addGeometry(Part.ArcOfCircle(Part.Circle(App.Vector(129, 24, 0), App.Vector(0, 0, 1), 7), math.radians(-45), math.radians(135)), False)
sketch2.addGeometry(Part.LineSegment(App.Vector(133.9, 19, 0), App.Vector(9.9, -104.5, 0)), False)
sketch2.addGeometry(Part.LineSegment(App.Vector(9.9, -104.5, 0), App.Vector(133.9, -228, 0)), False)
sketch2.addGeometry(Part.ArcOfCircle(Part.Circle(App.Vector(129, -233, 0), App.Vector(0, 0, 1), 7), math.radians(-135), math.radians(45)), False)
sketch2.addGeometry(Part.LineSegment(App.Vector(124.1, -238, 0), App.Vector(0, -114.4, 0)), False)
sketch2.addGeometry(Part.LineSegment(App.Vector(0, -114.4, 0), App.Vector(-124.1, -238, 0)), False)
sketch2.addGeometry(Part.ArcOfCircle(Part.Circle(App.Vector(-129, -233, 0), App.Vector(0, 0, 1), 7), math.radians(135), math.radians(315)), False)
sketch2.addGeometry(Part.Circle(App.Vector(-129, 24, 0), App.Vector(0, 0, 1), 2), False)
sketch2.addGeometry(Part.Circle(App.Vector(-104.5, 0, 0), App.Vector(0, 0, 1), 2), False)
sketch2.addGeometry(Part.Circle(App.Vector(129, 24, 0), App.Vector(0, 0, 1), 2), False)
sketch2.addGeometry(Part.Circle(App.Vector(104.5, 0, 0), App.Vector(0, 0, 1), 2), False)
sketch2.addGeometry(Part.Circle(App.Vector(-104.5, -209, 0), App.Vector(0, 0, 1), 2), False)
sketch2.addGeometry(Part.Circle(App.Vector(-129, -233, 0), App.Vector(0, 0, 1), 2), False)
sketch2.addGeometry(Part.Circle(App.Vector(104.5, -209, 0), App.Vector(0, 0, 1), 2), False)
sketch2.addGeometry(Part.Circle(App.Vector(129, -233, 0), App.Vector(0, 0, 1), 2), False)
sketch2.addConstraint(Sketcher.Constraint("Coincident", 0, 2, 1, 1))
sketch2.addConstraint(Sketcher.Constraint("Tangent", 1, 2, 2, 2))
sketch2.addConstraint(Sketcher.Constraint("Tangent", 2, 1, 3, 1))
sketch2.addConstraint(Sketcher.Constraint("Coincident", 3, 2, 4, 1))
sketch2.addConstraint(Sketcher.Constraint("Tangent", 4, 2, 5, 2))
sketch2.addConstraint(Sketcher.Constraint("Tangent", 5, 1, 6, 1))
sketch2.addConstraint(Sketcher.Constraint("Coincident", 6, 2, 7, 1))
sketch2.addConstraint(Sketcher.Constraint("Tangent", 7, 2, 8, 2))
sketch2.addConstraint(Sketcher.Constraint("Tangent", 8, 1, 9, 1))
sketch2.addConstraint(Sketcher.Constraint("Coincident", 9, 2, 10, 1))
sketch2.addConstraint(Sketcher.Constraint("Tangent", 10, 2, 11, 2))
sketch2.addConstraint(Sketcher.Constraint("Tangent", 11, 1, 0, 1))
sketch2.addConstraint(Sketcher.Constraint("Coincident", 12, 3, 2, 3))
sketch2.addConstraint(Sketcher.Constraint("Coincident", 14, 3, 5, 3))
sketch2.addConstraint(Sketcher.Constraint("Coincident", 17, 3, 11, 3))
sketch2.addConstraint(Sketcher.Constraint("Coincident", 19, 3, 8, 3))
sketch2.addConstraint(Sketcher.Constraint("Equal", 2, 5))
sketch2.addConstraint(Sketcher.Constraint("Equal", 5, 8))
sketch2.addConstraint(Sketcher.Constraint("Equal", 8, 11))
sketch2.addConstraint(Sketcher.Constraint("Equal", 12, 13))
sketch2.addConstraint(Sketcher.Constraint("Equal", 13, 14))
sketch2.addConstraint(Sketcher.Constraint("Equal", 14, 15))
sketch2.addConstraint(Sketcher.Constraint("Equal", 15, 16))
sketch2.addConstraint(Sketcher.Constraint("Equal", 16, 17))
sketch2.addConstraint(Sketcher.Constraint("Equal", 17, 18))
sketch2.addConstraint(Sketcher.Constraint("Equal", 18, 19))
sketch2.addConstraint(Sketcher.Constraint("Symmetric", 13, 3, 15, 3, -1, 1))
sketch2.addConstraint(Sketcher.Constraint("Symmetric", 2, 3, 5, 3, -2))
sketch2.addConstraint(Sketcher.Constraint("Symmetric", 8, 3, 11, 3, -2))
sketch2.addConstraint(Sketcher.Constraint("Symmetric", 16, 3, 18, 3, -2))
sketch2.addConstraint(Sketcher.Constraint("Symmetric", 0, 2, 6, 2, -2))
sketch2.addConstraint(Sketcher.Constraint("PointOnObject", 13, 3, -1))
sketch2.addConstraint(Sketcher.Constraint("PointOnObject", 3, 2, -2))
sketch2.addConstraint(Sketcher.Constraint("PointOnObject", 9, 2, -2))
sketch2.addConstraint(Sketcher.Constraint("Parallel", 1, 3))
sketch2.addConstraint(Sketcher.Constraint("Parallel", 0, 4))
sketch2.addConstraint(Sketcher.Constraint("Parallel", 7, 9))
sketch2.addConstraint(Sketcher.Constraint("Vertical", 5, 3, 8, 3))
sketch2.addConstraint(Sketcher.Constraint("Vertical", 13, 3, 16, 3))
sketch2.addConstraint(Sketcher.Constraint("Diameter", 12, Q("4 mm")))
sketch2.addConstraint(Sketcher.Constraint("Radius", 2, Q("7 mm")))
sketch2.addConstraint(Sketcher.Constraint("DistanceX", 2, 3, -1, 1, Q("129 mm")))
sketch2.addConstraint(Sketcher.Constraint("DistanceY", -1, 1, 2, 3, Q("24 mm")))
sketch2.addConstraint(Sketcher.Constraint("DistanceY", 8, 3, -1, 1, Q("233 mm")))
sketch2.addConstraint(Sketcher.Constraint("DistanceY", 16, 3, -1, 1, Q("209 mm")))
sketch2.addConstraint(Sketcher.Constraint("DistanceX", 13, 3, 15, 3, Q("209 mm")))
sketch2.addConstraint(Sketcher.Constraint("DistanceY", 1, 2, 2, 1, Q("9.918699 mm")))
pad2 = body.newObject("PartDesign::Pad", "Pad001")
pad2.Profile = sketch2
pad2.Length = 6
pad2.Reversed = True

# Sketch on XZ plane
sketch3 = body.newObject("Sketcher::SketchObject", "Sketch002")
sketch3.AttachmentSupport = (doc.getObject("XZ_Plane"), [""])
sketch3.MapMode = "FlatFace"
sketch3.AttachmentOffset = App.Placement(App.Vector(0, 0, -6), App.Rotation())
add_polygon(sketch3, [(111, -79), (102, -87), (102, -52), (111, -60), (111, -4), (123, 8), (123, -217), (111, -205), (111, -149), (102, -157), (102, -122), (111, -130)])  # lines 0-11
add_polygon(sketch3, [(113, -227), (-113, -227), (-101, -215), (101, -215)])  # lines 12-15
add_polygon(sketch3, [(-111, -79), (-111, -130), (-102, -122), (-102, -157), (-111, -149), (-111, -205), (-123, -217), (-123, 8), (-111, -4), (-111, -60), (-102, -52), (-102, -87)])  # lines 16-27
add_polygon(sketch3, [(101, 6), (-101, 6), (-113, 18), (113, 18)])  # lines 28-31
sketch3.addConstraint(Sketcher.Constraint("Vertical", 1))
sketch3.addConstraint(Sketcher.Constraint("Vertical", 3))
sketch3.addConstraint(Sketcher.Constraint("Vertical", 5))
sketch3.addConstraint(Sketcher.Constraint("Vertical", 7))
sketch3.addConstraint(Sketcher.Constraint("Vertical", 9))
sketch3.addConstraint(Sketcher.Constraint("Vertical", 11))
sketch3.addConstraint(Sketcher.Constraint("Horizontal", 12))
sketch3.addConstraint(Sketcher.Constraint("Horizontal", 14))
sketch3.addConstraint(Sketcher.Constraint("Vertical", 16))
sketch3.addConstraint(Sketcher.Constraint("Vertical", 18))
sketch3.addConstraint(Sketcher.Constraint("Vertical", 20))
sketch3.addConstraint(Sketcher.Constraint("Vertical", 22))
sketch3.addConstraint(Sketcher.Constraint("Vertical", 24))
sketch3.addConstraint(Sketcher.Constraint("Vertical", 26))
sketch3.addConstraint(Sketcher.Constraint("Horizontal", 28))
sketch3.addConstraint(Sketcher.Constraint("Horizontal", 30))
sketch3.addConstraint(Sketcher.Constraint("Symmetric", 10, 2, 16, 2, -2))
sketch3.addConstraint(Sketcher.Constraint("Symmetric", 9, 2, 17, 2, -2))
sketch3.addConstraint(Sketcher.Constraint("Symmetric", 7, 2, 19, 2, -2))
sketch3.addConstraint(Sketcher.Constraint("Symmetric", 5, 2, 21, 2, -2))
sketch3.addConstraint(Sketcher.Constraint("Symmetric", 3, 2, 23, 2, -2))
sketch3.addConstraint(Sketcher.Constraint("Symmetric", 1, 2, 25, 2, -2))
sketch3.addConstraint(Sketcher.Constraint("Perpendicular", 0, 2))
sketch3.addConstraint(Sketcher.Constraint("Perpendicular", 2, 8))
sketch3.addConstraint(Sketcher.Constraint("Perpendicular", 8, 10))
sketch3.addConstraint(Sketcher.Constraint("Parallel", 4, 13))
sketch3.addConstraint(Sketcher.Constraint("Parallel", 6, 15))
sketch3.addConstraint(Sketcher.Constraint("Perpendicular", 10, 17))
sketch3.addConstraint(Sketcher.Constraint("Perpendicular", 17, 19))
sketch3.addConstraint(Sketcher.Constraint("Parallel", 13, 21))
sketch3.addConstraint(Sketcher.Constraint("Parallel", 15, 23))
sketch3.addConstraint(Sketcher.Constraint("Perpendicular", 19, 25))
sketch3.addConstraint(Sketcher.Constraint("Perpendicular", 25, 27))
sketch3.addConstraint(Sketcher.Constraint("Parallel", 23, 29))
sketch3.addConstraint(Sketcher.Constraint("Parallel", 21, 31))
sketch3.addConstraint(Sketcher.Constraint("Horizontal", 6, 2, 20, 2))
sketch3.addConstraint(Sketcher.Constraint("Horizontal", 0, 2, 26, 2))
sketch3.addConstraint(Sketcher.Constraint("Vertical", 3, 2, 6, 2))
sketch3.addConstraint(Sketcher.Constraint("Vertical", 1, 2, 8, 2))
sketch3.addConstraint(Sketcher.Constraint("Vertical", 7, 2, 10, 2))
sketch3.addConstraint(Sketcher.Constraint("Vertical", 13, 2, 28, 2))
sketch3.addConstraint(Sketcher.Constraint("Vertical", 12, 2, 29, 2))
sketch3.addConstraint(Sketcher.Constraint("Vertical", 15, 2, 30, 2))
sketch3.addConstraint(Sketcher.Constraint("Equal", 3, 7))
sketch3.addConstraint(Sketcher.Constraint("Equal", 1, 9))
sketch3.addConstraint(Sketcher.Constraint("Equal", 6, 13))
sketch3.addConstraint(Sketcher.Constraint("DistanceY", 3, 2, 4, 2, Q("12 mm")))
sketch3.addConstraint(Sketcher.Constraint("DistanceY", 8, 2, 0, 2, Q("70 mm")))
sketch3.addConstraint(Sketcher.Constraint("DistanceY", 12, 2, 8, 2, Q("70 mm")))
sketch3.addConstraint(Sketcher.Constraint("DistanceX", 17, 2, 9, 2, Q("205 mm")))
sketch3.addConstraint(Sketcher.Constraint("DistanceY", 25, 2, 28, 2, Q("58 mm")))
sketch3.addConstraint(Sketcher.Constraint("DistanceX", 12, 2, 12, 1, Q("226.01343 mm")))
sketch3.addConstraint(Sketcher.Constraint("DistanceY", 3, 1, 3, 2, Q("56.421578 mm")))
sketch3.addConstraint(Sketcher.Constraint("DistanceY", 5, 2, 5, 1, Q("225.060669 mm")))
sketch3.addConstraint(Sketcher.Constraint("DistanceY", 1, 2, 3, 2, Q("48.081301 mm")))
sketch3.addConstraint(Sketcher.Constraint("DistanceX", 13, 2, 6, 2, Q("211.800299 mm")))
sketch3.addConstraint(Sketcher.Constraint("Distance", 4, Q("17.003611 mm")))
sketch3.addConstraint(Sketcher.Constraint("DistanceY", 0, 2, -1, 1, Q("86.949033 mm")))
pad3 = body.newObject("PartDesign::Pad", "Pad002")
pad3.Profile = sketch3
pad3.Length = 6

doc.recompute()
